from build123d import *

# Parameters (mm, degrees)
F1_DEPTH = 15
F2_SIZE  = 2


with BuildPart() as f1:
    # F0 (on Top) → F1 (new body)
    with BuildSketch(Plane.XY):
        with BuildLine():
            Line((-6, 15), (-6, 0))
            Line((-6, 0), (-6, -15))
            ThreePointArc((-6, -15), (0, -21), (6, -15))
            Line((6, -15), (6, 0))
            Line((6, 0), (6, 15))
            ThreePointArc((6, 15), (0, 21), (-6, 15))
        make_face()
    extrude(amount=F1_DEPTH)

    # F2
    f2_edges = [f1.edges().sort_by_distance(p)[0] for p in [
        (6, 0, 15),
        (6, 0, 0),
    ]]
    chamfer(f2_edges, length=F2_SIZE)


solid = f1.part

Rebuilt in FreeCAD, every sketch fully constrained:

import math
import FreeCAD as App
import Part
import Sketcher


def edges_at(feature, points):
    """Names of the edges that pass closest to the given points."""
    edges = feature.Shape.Edges
    near = lambda p: min(range(len(edges)), key=lambda i: edges[i].distToShape(Part.Vertex(*p))[0])
    return sorted({f"Edge{near(p) + 1}" for p in points})

doc = App.newDocument("Part")
body = doc.addObject("PartDesign::Body", "Body")

# Sketch on XY plane
sketch1 = doc.addObject("Sketcher::SketchObject", "Sketch")
body.addObject(sketch1)
sketch1.AttachmentSupport = (doc.XY_Plane, [""])
sketch1.MapMode = "FlatFace"
sketch1.addGeometry(Part.LineSegment(App.Vector(-6, 15, 0), App.Vector(-6, -15, 0)), False)
sketch1.addGeometry(Part.ArcOfCircle(Part.Circle(App.Vector(0, -15, 0), App.Vector(0, 0, 1), 6), math.radians(180), math.radians(360)), False)
sketch1.addGeometry(Part.LineSegment(App.Vector(6, -15, 0), App.Vector(6, 15, 0)), False)
sketch1.addGeometry(Part.ArcOfCircle(Part.Circle(App.Vector(0, 15, 0), App.Vector(0, 0, 1), 6), math.radians(0), math.radians(180)), False)
sketch1.addConstraint(Sketcher.Constraint("Tangent", 0, 2, 1, 1))
sketch1.addConstraint(Sketcher.Constraint("Tangent", 1, 2, 2, 1))
sketch1.addConstraint(Sketcher.Constraint("Tangent", 2, 2, 3, 1))
sketch1.addConstraint(Sketcher.Constraint("Tangent", 3, 2, 0, 1))
sketch1.addConstraint(Sketcher.Constraint("Vertical", 0))
sketch1.addConstraint(Sketcher.Constraint("Vertical", 2))
sketch1.addConstraint(Sketcher.Constraint("Symmetric", 1, 3, 3, 3, -1, 1))
sketch1.addConstraint(Sketcher.Constraint("Radius", 1, 6.0))
sketch1.addConstraint(Sketcher.Constraint("DistanceY", 0, 2, 0, 1, 30.0))
pad1 = doc.addObject("PartDesign::Pad", "Pad")
body.addObject(pad1)
pad1.Profile = sketch1
pad1.Length = 15
doc.recompute()

chamfer = doc.addObject("PartDesign::Chamfer", "Chamfer")
body.addObject(chamfer)
chamfer.Base = (pad1, edges_at(pad1, [(6, 0, 15), (6, 0, 0)]))
chamfer.Size = 2

doc.recompute()
